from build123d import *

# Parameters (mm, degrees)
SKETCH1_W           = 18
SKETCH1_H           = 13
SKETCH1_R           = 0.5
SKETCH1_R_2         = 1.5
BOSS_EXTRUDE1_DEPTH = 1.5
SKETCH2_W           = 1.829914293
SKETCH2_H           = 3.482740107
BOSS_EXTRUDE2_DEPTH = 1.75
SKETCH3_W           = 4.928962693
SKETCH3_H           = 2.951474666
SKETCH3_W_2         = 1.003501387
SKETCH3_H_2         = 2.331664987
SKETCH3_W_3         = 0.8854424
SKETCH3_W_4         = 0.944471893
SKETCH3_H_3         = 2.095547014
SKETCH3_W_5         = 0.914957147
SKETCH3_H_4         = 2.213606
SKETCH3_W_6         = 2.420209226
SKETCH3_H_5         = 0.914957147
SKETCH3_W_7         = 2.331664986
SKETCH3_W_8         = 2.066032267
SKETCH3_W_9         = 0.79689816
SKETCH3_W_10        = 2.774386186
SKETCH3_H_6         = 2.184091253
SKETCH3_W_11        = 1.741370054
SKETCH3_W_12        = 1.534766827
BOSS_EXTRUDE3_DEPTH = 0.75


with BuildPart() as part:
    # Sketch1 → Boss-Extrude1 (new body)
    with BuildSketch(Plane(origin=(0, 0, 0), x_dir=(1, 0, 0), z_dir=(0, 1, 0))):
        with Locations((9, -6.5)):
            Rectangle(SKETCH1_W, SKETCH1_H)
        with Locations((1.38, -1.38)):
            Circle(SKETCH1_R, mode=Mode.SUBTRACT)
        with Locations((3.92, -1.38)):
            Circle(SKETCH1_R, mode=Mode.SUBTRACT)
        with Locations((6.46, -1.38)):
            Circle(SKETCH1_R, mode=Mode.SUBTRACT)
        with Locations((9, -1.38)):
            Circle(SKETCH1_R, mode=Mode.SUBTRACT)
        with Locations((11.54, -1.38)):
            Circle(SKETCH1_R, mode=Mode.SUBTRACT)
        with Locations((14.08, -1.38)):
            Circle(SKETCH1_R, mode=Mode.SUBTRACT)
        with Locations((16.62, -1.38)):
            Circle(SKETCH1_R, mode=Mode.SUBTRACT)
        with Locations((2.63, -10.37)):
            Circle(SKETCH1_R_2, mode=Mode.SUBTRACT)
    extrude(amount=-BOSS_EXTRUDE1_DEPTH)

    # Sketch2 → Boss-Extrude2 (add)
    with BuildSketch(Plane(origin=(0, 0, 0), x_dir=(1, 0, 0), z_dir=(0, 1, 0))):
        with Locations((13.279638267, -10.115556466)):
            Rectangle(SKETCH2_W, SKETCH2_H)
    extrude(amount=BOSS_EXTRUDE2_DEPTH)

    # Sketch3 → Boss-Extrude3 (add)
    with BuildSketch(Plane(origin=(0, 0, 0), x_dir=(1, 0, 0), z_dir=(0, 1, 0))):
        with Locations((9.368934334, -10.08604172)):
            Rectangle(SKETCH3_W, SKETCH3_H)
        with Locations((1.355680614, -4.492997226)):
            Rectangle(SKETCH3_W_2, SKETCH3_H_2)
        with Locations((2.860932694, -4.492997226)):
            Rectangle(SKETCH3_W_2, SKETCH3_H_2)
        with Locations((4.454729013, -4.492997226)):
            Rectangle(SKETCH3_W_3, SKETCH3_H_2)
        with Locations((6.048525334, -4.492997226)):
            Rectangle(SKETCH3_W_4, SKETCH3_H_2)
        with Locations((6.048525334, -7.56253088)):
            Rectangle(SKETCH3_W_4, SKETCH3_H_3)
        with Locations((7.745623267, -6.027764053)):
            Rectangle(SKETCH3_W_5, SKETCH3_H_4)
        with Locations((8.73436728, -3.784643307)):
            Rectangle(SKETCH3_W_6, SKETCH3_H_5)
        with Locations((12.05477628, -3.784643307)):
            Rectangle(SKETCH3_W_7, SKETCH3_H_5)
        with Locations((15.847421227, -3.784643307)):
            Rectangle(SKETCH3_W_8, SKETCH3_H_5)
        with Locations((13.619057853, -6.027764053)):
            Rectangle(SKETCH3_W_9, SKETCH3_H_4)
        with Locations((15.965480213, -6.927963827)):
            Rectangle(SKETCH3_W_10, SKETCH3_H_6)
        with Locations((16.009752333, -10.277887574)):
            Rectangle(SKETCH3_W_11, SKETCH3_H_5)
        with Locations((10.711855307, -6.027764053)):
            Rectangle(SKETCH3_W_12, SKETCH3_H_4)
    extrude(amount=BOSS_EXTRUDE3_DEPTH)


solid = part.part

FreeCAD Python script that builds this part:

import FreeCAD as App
import Part
import Sketcher
Q = App.Units.Quantity


def add_polygon(sketch, points):
    """Adds a closed chain of lines whose ends are joined by coincident constraints."""
    first, n = sketch.GeometryCount, len(points)
    for a, b in zip(points, points[1:] + points[:1]):
        sketch.addGeometry(Part.LineSegment(App.Vector(*a, 0), App.Vector(*b, 0)), False)
    for i in range(n):
        sketch.addConstraint(Sketcher.Constraint("Coincident", first + i, 2, first + (i + 1) % n, 1))

doc = App.newDocument("Part")
body = doc.addObject("PartDesign::Body", "Body")

# Sketch on XZ plane
sketch1 = body.newObject("Sketcher::SketchObject", "Sketch")
sketch1.AttachmentSupport = (doc.getObject("XZ_Plane"), [""])
sketch1.MapMode = "FlatFace"
add_polygon(sketch1, [(0, 0), (0, 13), (18, 13), (18, 0)])  # lines 0-3
sketch1.addGeometry(Part.Circle(App.Vector(2.6, 10.4, 0), App.Vector(0, 0, 1), 1.5), False)  # 4
sketch1.addGeometry(Part.Circle(App.Vector(1.4, 1.4, 0), App.Vector(0, 0, 1), 0.5), False)  # 5
sketch1.addGeometry(Part.Circle(App.Vector(3.9, 1.4, 0), App.Vector(0, 0, 1), 0.5), False)  # 6
sketch1.addGeometry(Part.Circle(App.Vector(6.5, 1.4, 0), App.Vector(0, 0, 1), 0.5), False)  # 7
sketch1.addGeometry(Part.Circle(App.Vector(9, 1.4, 0), App.Vector(0, 0, 1), 0.5), False)  # 8
sketch1.addGeometry(Part.Circle(App.Vector(11.5, 1.4, 0), App.Vector(0, 0, 1), 0.5), False)  # 9
sketch1.addGeometry(Part.Circle(App.Vector(14.1, 1.4, 0), App.Vector(0, 0, 1), 0.5), False)  # 10
sketch1.addGeometry(Part.Circle(App.Vector(16.6, 1.4, 0), App.Vector(0, 0, 1), 0.5), False)  # 11
sketch1.addConstraint([
    Sketcher.Constraint("Vertical", 0),
    Sketcher.Constraint("Horizontal", 1),
    Sketcher.Constraint("Vertical", 2),
    Sketcher.Constraint("Horizontal", 3),
    Sketcher.Constraint("Coincident", 3, 2, -1, 1),
    Sketcher.Constraint("Equal", 5, 6),
    Sketcher.Constraint("Equal", 6, 7),
    Sketcher.Constraint("Equal", 7, 8),
    Sketcher.Constraint("Equal", 8, 9),
    Sketcher.Constraint("Equal", 9, 10),
    Sketcher.Constraint("Equal", 10, 11),
    Sketcher.Constraint("Horizontal", 5, 3, 6, 3),
    Sketcher.Constraint("Horizontal", 6, 3, 7, 3),
    Sketcher.Constraint("Horizontal", 7, 3, 8, 3),
    Sketcher.Constraint("Horizontal", 8, 3, 9, 3),
    Sketcher.Constraint("Horizontal", 9, 3, 10, 3),
    Sketcher.Constraint("Horizontal", 10, 3, 11, 3),
    Sketcher.Constraint("Diameter", 4, Q("3 mm")),
    Sketcher.Constraint("Diameter", 5, Q("1 mm")),
    Sketcher.Constraint("DistanceX", 1, 1, 1, 2, Q("18 mm")),
    Sketcher.Constraint("DistanceY", 0, 1, 0, 2, Q("13 mm")),
    Sketcher.Constraint("DistanceX", -1, 1, 8, 3, Q("9 mm")),
    Sketcher.Constraint("DistanceX", 5, 3, 10, 3, Q("12.7 mm")),
    Sketcher.Constraint("DistanceX", 6, 3, 11, 3, Q("12.7 mm")),
    Sketcher.Constraint("DistanceX", -1, 1, 4, 3, Q("2.63 mm")),
    Sketcher.Constraint("DistanceY", -1, 1, 4, 3, Q("10.37 mm")),
    Sketcher.Constraint("DistanceX", -1, 1, 5, 3, Q("1.38 mm")),
    Sketcher.Constraint("DistanceY", -1, 1, 5, 3, Q("1.38 mm")),
    Sketcher.Constraint("DistanceX", -1, 1, 6, 3, Q("3.92 mm")),
    Sketcher.Constraint("DistanceX", -1, 1, 7, 3, Q("6.46 mm")),
    Sketcher.Constraint("DistanceX", -1, 1, 9, 3, Q("11.54 mm")),
])
pad1 = body.newObject("PartDesign::Pad", "Pad")
pad1.Profile = sketch1
pad1.Length = 1.5

# Sketch on XZ plane
sketch2 = body.newObject("Sketcher::SketchObject", "Sketch001")
sketch2.AttachmentSupport = (doc.getObject("XZ_Plane"), [""])
sketch2.MapMode = "FlatFace"
add_polygon(sketch2, [(12.4, 8.4), (12.4, 11.9), (14.2, 11.9), (14.2, 8.4)])  # lines 0-3
sketch2.addConstraint([
    Sketcher.Constraint("Vertical", 0),
    Sketcher.Constraint("Horizontal", 1),
    Sketcher.Constraint("Vertical", 2),
    Sketcher.Constraint("Horizontal", 3),
    Sketcher.Constraint("DistanceY", 0, 1, 0, 2, Q("3.48274 mm")),
    Sketcher.Constraint("DistanceX", 1, 1, 1, 2, Q("1.829914 mm")),
    Sketcher.Constraint("DistanceX", -1, 1, 0, 2, Q("12.364681 mm")),
    Sketcher.Constraint("DistanceY", -1, 1, 0, 2, Q("11.856927 mm")),
])
pad2 = body.newObject("PartDesign::Pad", "Pad001")
pad2.Profile = sketch2
pad2.Length = 1.75
pad2.Reversed = True

# Sketch on XZ plane
sketch3 = body.newObject("Sketcher::SketchObject", "Sketch002")
sketch3.AttachmentSupport = (doc.getObject("XZ_Plane"), [""])
sketch3.MapMode = "FlatFace"
add_polygon(sketch3, [(6.9, 8.6), (6.9, 11.6), (11.8, 11.6), (11.8, 8.6)])  # lines 0-3
add_polygon(sketch3, [(0.9, 3.3), (0.9, 5.7), (1.9, 5.7), (1.9, 3.3)])  # lines 4-7
add_polygon(sketch3, [(2.4, 3.3), (2.4, 5.7), (3.4, 5.7), (3.4, 3.3)])  # lines 8-11
add_polygon(sketch3, [(4, 3.3), (4, 5.7), (4.9, 5.7), (4.9, 3.3)])  # lines 12-15
add_polygon(sketch3, [(5.6, 3.3), (5.6, 5.7), (6.5, 5.7), (6.5, 3.3)])  # lines 16-19
add_polygon(sketch3, [(5.6, 6.5), (5.6, 8.6), (6.5, 8.6), (6.5, 6.5)])  # lines 20-23
add_polygon(sketch3, [(7.3, 4.9), (7.3, 7.1), (8.2, 7.1), (8.2, 4.9)])  # lines 24-27
add_polygon(sketch3, [(7.5, 3.3), (7.5, 4.2), (9.9, 4.2), (9.9, 3.3)])  # lines 28-31
add_polygon(sketch3, [(10.9, 3.3), (10.9, 4.2), (13.2, 4.2), (13.2, 3.3)])  # lines 32-35
add_polygon(sketch3, [(14.8, 3.3), (14.8, 4.2), (16.9, 4.2), (16.9, 3.3)])  # lines 36-39
add_polygon(sketch3, [(13.2, 4.9), (13.2, 7.1), (14, 7.1), (14, 4.9)])  # lines 40-43
add_polygon(sketch3, [(14.6, 5.8), (14.6, 8), (17.4, 8), (17.4, 5.8)])  # lines 44-47
add_polygon(sketch3, [(15.1, 9.8), (15.1, 10.7), (16.9, 10.7), (16.9, 9.8)])  # lines 48-51
add_polygon(sketch3, [(9.9, 4.9), (9.9, 7.1), (11.5, 7.1), (11.5, 4.9)])  # lines 52-55
sketch3.addConstraint([
    Sketcher.Constraint("Vertical", 0),
    Sketcher.Constraint("Horizontal", 1),
    Sketcher.Constraint("Vertical", 2),
    Sketcher.Constraint("Horizontal", 3),
    Sketcher.Constraint("Vertical", 4),
    Sketcher.Constraint("Horizontal", 5),
    Sketcher.Constraint("Vertical", 6),
    Sketcher.Constraint("Horizontal", 7),
    Sketcher.Constraint("Vertical", 8),
    Sketcher.Constraint("Horizontal", 9),
    Sketcher.Constraint("Vertical", 10),
    Sketcher.Constraint("Horizontal", 11),
    Sketcher.Constraint("Vertical", 12),
    Sketcher.Constraint("Horizontal", 13),
    Sketcher.Constraint("Vertical", 14),
    Sketcher.Constraint("Horizontal", 15),
    Sketcher.Constraint("Vertical", 16),
    Sketcher.Constraint("Horizontal", 17),
    Sketcher.Constraint("Vertical", 18),
    Sketcher.Constraint("Horizontal", 19),
    Sketcher.Constraint("Vertical", 20),
    Sketcher.Constraint("Horizontal", 21),
    Sketcher.Constraint("Vertical", 22),
    Sketcher.Constraint("Horizontal", 23),
    Sketcher.Constraint("Vertical", 24),
    Sketcher.Constraint("Horizontal", 25),
    Sketcher.Constraint("Vertical", 26),
    Sketcher.Constraint("Horizontal", 27),
    Sketcher.Constraint("Vertical", 28),
    Sketcher.Constraint("Horizontal", 29),
    Sketcher.Constraint("Vertical", 30),
    Sketcher.Constraint("Horizontal", 31),
    Sketcher.Constraint("Vertical", 32),
    Sketcher.Constraint("Horizontal", 33),
    Sketcher.Constraint("Vertical", 34),
    Sketcher.Constraint("Horizontal", 35),
    Sketcher.Constraint("Vertical", 36),
    Sketcher.Constraint("Horizontal", 37),
    Sketcher.Constraint("Vertical", 38),
    Sketcher.Constraint("Horizontal", 39),
    Sketcher.Constraint("Vertical", 40),
    Sketcher.Constraint("Horizontal", 41),
    Sketcher.Constraint("Vertical", 42),
    Sketcher.Constraint("Horizontal", 43),
    Sketcher.Constraint("Vertical", 44),
    Sketcher.Constraint("Horizontal", 45),
    Sketcher.Constraint("Vertical", 46),
    Sketcher.Constraint("Horizontal", 47),
    Sketcher.Constraint("Vertical", 48),
    Sketcher.Constraint("Horizontal", 49),
    Sketcher.Constraint("Vertical", 50),
    Sketcher.Constraint("Horizontal", 51),
    Sketcher.Constraint("Vertical", 52),
    Sketcher.Constraint("Horizontal", 53),
    Sketcher.Constraint("Vertical", 54),
    Sketcher.Constraint("Horizontal", 55),
    Sketcher.Constraint("Horizontal", 5, 2, 8, 2),
    Sketcher.Constraint("Horizontal", 7, 2, 10, 2),
    Sketcher.Constraint("Horizontal", 9, 2, 12, 2),
    Sketcher.Constraint("Horizontal", 11, 2, 14, 2),
    Sketcher.Constraint("Horizontal", 13, 2, 16, 2),
    Sketcher.Constraint("Horizontal", 15, 2, 18, 2),
    Sketcher.Constraint("Horizontal", 3, 2, 20, 2),
    Sketcher.Constraint("Horizontal", 19, 2, 30, 2),
    Sketcher.Constraint("Horizontal", 29, 2, 32, 2),
    Sketcher.Constraint("Horizontal", 31, 2, 34, 2),
    Sketcher.Constraint("Horizontal", 33, 2, 36, 2),
    Sketcher.Constraint("Horizontal", 35, 2, 38, 2),
    Sketcher.Constraint("Horizontal", 25, 2, 40, 2),
    Sketcher.Constraint("Horizontal", 27, 2, 42, 2),
    Sketcher.Constraint("Horizontal", 41, 2, 52, 2),
    Sketcher.Constraint("Horizontal", 43, 2, 54, 2),
    Sketcher.Constraint("Vertical", 19, 2, 20, 2),
    Sketcher.Constraint("Vertical", 18, 2, 21, 2),
    Sketcher.Constraint("Vertical", 34, 2, 40, 2),
    Sketcher.Constraint("Vertical", 38, 2, 49, 2),
    Sketcher.Constraint("Vertical", 30, 2, 52, 2),
    Sketcher.Constraint("Equal", 7, 9),
    Sketcher.Constraint("Equal", 35, 4),
    Sketcher.Constraint("Equal", 27, 28),
    Sketcher.Constraint("Equal", 38, 48),
    Sketcher.Constraint("DistanceX", 5, 1, 5, 2, Q("1.003501 mm")),
    Sketcher.Constraint("DistanceX", 41, 1, 41, 2, Q("0.796898 mm")),
    Sketcher.Constraint("DistanceX", 17, 1, 17, 2, Q("0.944472 mm")),
    Sketcher.Constraint("DistanceX", 29, 1, 29, 2, Q("2.420209 mm")),
    Sketcher.Constraint("DistanceX", 49, 1, 49, 2, Q("1.74137 mm")),
    Sketcher.Constraint("DistanceY", 44, 1, 44, 2, Q("2.184091 mm")),
    Sketcher.Constraint("DistanceX", -1, 1, 25, 2, Q("8.203102 mm")),
    Sketcher.Constraint("DistanceX", 18, 2, 28, 2, Q("1.003501 mm")),
    Sketcher.Constraint("DistanceX", 41, 2, 36, 2, Q("0.796898 mm")),
    Sketcher.Constraint("DistanceY", 41, 2, 48, 2, Q("3.600799 mm")),
    Sketcher.Constraint("DistanceY", 45, 2, 50, 2, Q("1.8004 mm")),
    Sketcher.Constraint("DistanceX", 1, 1, 1, 2, Q("4.928963 mm")),
    Sketcher.Constraint("DistanceX", 13, 1, 13, 2, Q("0.885442 mm")),
    Sketcher.Constraint("DistanceX", 25, 1, 25, 2, Q("0.914957 mm")),
    Sketcher.Constraint("DistanceX", 33, 1, 33, 2, Q("2.331665 mm")),
    Sketcher.Constraint("DistanceX", 37, 1, 37, 2, Q("2.066032 mm")),
    Sketcher.Constraint("DistanceX", 45, 1, 45, 2, Q("2.774386 mm")),
    Sketcher.Constraint("DistanceX", 53, 1, 53, 2, Q("1.534767 mm")),
    Sketcher.Constraint("DistanceY", 0, 1, 0, 2, Q("2.951475 mm")),
    Sketcher.Constraint("DistanceY", 20, 1, 20, 2, Q("2.095547 mm")),
    Sketcher.Constraint("DistanceY", 24, 1, 24, 2, Q("2.213606 mm")),
    Sketcher.Constraint("DistanceY", -1, 1, 0, 2, Q("11.561779 mm")),
    Sketcher.Constraint("DistanceX", -1, 1, 4, 2, Q("0.85393 mm")),
    Sketcher.Constraint("DistanceY", -1, 1, 4, 2, Q("5.65883 mm")),
    Sketcher.Constraint("DistanceX", -1, 1, 13, 2, Q("4.89745 mm")),
    Sketcher.Constraint("DistanceX", -1, 1, 16, 2, Q("5.576289 mm")),
    Sketcher.Constraint("DistanceY", -1, 1, 26, 2, Q("4.920961 mm")),
    Sketcher.Constraint("DistanceX", -1, 1, 33, 2, Q("13.220609 mm")),
    Sketcher.Constraint("DistanceX", 5, 2, 3, 2, Q("5.047022 mm")),
    Sketcher.Constraint("DistanceX", 5, 2, 8, 2, Q("0.501751 mm")),
    Sketcher.Constraint("DistanceX", 41, 2, 44, 2, Q("0.56078 mm")),
])
pad3 = body.newObject("PartDesign::Pad", "Pad002")
pad3.Profile = sketch3
pad3.Length = 0.75
pad3.Reversed = True

doc.recompute()
